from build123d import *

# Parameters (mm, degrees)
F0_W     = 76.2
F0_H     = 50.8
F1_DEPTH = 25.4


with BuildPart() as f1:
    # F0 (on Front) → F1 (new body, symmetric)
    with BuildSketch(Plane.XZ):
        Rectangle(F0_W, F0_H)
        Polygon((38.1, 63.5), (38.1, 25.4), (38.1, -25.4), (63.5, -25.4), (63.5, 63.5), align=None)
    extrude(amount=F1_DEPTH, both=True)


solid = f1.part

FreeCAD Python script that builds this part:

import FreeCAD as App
import Part
import Sketcher
Q = App.Units.Quantity

doc = App.newDocument("Part")
body = doc.addObject("PartDesign::Body", "Body")

sketch1 = body.newObject("Sketcher::SketchObject", "Sketch")
sketch1.AttachmentSupport = (doc.getObject("XZ_Plane"), [""])
sketch1.MapMode = "FlatFace"
sketch1.addGeometry([
    Part.LineSegment(App.Vector(-38.1, 25.4, 0), App.Vector(-38.1, -25.4, 0)),
    Part.LineSegment(App.Vector(-38.1, -25.4, 0), App.Vector(63.5, -25.4, 0)),
    Part.LineSegment(App.Vector(63.5, -25.4, 0), App.Vector(63.5, 63.5, 0)),
    Part.LineSegment(App.Vector(63.5, 63.5, 0), App.Vector(38.1, 63.5, 0)),
    Part.LineSegment(App.Vector(38.1, 63.5, 0), App.Vector(38.1, 25.4, 0)),
    Part.LineSegment(App.Vector(38.1, 25.4, 0), App.Vector(-38.1, 25.4, 0)),
], False)
sketch1.addConstraint([
    Sketcher.Constraint("Coincident", 0, 2, 1, 1),
    Sketcher.Constraint("Coincident", 1, 2, 2, 1),
    Sketcher.Constraint("Coincident", 2, 2, 3, 1),
    Sketcher.Constraint("Coincident", 3, 2, 4, 1),
    Sketcher.Constraint("Coincident", 4, 2, 5, 1),
    Sketcher.Constraint("Coincident", 5, 2, 0, 1),
    Sketcher.Constraint("Vertical", 0),
    Sketcher.Constraint("Horizontal", 1),
    Sketcher.Constraint("Vertical", 2),
    Sketcher.Constraint("Horizontal", 3),
    Sketcher.Constraint("Vertical", 4),
    Sketcher.Constraint("Horizontal", 5),
    Sketcher.Constraint("Symmetric", 0, 2, 4, 2, -1, 1),
    Sketcher.Constraint("DistanceX", 1, 1, 1, 2, Q("4 in")),
    Sketcher.Constraint("DistanceX", 3, 2, 3, 1, Q("1 in")),
    Sketcher.Constraint("DistanceY", 0, 2, 0, 1, Q("2 in")),
    Sketcher.Constraint("DistanceY", 2, 1, 2, 2, Q("3.5 in")),
])
pad1 = body.newObject("PartDesign::Pad", "Pad")
pad1.Profile = sketch1
pad1.Length = Q("2 in")
pad1.Midplane = True

doc.recompute()
